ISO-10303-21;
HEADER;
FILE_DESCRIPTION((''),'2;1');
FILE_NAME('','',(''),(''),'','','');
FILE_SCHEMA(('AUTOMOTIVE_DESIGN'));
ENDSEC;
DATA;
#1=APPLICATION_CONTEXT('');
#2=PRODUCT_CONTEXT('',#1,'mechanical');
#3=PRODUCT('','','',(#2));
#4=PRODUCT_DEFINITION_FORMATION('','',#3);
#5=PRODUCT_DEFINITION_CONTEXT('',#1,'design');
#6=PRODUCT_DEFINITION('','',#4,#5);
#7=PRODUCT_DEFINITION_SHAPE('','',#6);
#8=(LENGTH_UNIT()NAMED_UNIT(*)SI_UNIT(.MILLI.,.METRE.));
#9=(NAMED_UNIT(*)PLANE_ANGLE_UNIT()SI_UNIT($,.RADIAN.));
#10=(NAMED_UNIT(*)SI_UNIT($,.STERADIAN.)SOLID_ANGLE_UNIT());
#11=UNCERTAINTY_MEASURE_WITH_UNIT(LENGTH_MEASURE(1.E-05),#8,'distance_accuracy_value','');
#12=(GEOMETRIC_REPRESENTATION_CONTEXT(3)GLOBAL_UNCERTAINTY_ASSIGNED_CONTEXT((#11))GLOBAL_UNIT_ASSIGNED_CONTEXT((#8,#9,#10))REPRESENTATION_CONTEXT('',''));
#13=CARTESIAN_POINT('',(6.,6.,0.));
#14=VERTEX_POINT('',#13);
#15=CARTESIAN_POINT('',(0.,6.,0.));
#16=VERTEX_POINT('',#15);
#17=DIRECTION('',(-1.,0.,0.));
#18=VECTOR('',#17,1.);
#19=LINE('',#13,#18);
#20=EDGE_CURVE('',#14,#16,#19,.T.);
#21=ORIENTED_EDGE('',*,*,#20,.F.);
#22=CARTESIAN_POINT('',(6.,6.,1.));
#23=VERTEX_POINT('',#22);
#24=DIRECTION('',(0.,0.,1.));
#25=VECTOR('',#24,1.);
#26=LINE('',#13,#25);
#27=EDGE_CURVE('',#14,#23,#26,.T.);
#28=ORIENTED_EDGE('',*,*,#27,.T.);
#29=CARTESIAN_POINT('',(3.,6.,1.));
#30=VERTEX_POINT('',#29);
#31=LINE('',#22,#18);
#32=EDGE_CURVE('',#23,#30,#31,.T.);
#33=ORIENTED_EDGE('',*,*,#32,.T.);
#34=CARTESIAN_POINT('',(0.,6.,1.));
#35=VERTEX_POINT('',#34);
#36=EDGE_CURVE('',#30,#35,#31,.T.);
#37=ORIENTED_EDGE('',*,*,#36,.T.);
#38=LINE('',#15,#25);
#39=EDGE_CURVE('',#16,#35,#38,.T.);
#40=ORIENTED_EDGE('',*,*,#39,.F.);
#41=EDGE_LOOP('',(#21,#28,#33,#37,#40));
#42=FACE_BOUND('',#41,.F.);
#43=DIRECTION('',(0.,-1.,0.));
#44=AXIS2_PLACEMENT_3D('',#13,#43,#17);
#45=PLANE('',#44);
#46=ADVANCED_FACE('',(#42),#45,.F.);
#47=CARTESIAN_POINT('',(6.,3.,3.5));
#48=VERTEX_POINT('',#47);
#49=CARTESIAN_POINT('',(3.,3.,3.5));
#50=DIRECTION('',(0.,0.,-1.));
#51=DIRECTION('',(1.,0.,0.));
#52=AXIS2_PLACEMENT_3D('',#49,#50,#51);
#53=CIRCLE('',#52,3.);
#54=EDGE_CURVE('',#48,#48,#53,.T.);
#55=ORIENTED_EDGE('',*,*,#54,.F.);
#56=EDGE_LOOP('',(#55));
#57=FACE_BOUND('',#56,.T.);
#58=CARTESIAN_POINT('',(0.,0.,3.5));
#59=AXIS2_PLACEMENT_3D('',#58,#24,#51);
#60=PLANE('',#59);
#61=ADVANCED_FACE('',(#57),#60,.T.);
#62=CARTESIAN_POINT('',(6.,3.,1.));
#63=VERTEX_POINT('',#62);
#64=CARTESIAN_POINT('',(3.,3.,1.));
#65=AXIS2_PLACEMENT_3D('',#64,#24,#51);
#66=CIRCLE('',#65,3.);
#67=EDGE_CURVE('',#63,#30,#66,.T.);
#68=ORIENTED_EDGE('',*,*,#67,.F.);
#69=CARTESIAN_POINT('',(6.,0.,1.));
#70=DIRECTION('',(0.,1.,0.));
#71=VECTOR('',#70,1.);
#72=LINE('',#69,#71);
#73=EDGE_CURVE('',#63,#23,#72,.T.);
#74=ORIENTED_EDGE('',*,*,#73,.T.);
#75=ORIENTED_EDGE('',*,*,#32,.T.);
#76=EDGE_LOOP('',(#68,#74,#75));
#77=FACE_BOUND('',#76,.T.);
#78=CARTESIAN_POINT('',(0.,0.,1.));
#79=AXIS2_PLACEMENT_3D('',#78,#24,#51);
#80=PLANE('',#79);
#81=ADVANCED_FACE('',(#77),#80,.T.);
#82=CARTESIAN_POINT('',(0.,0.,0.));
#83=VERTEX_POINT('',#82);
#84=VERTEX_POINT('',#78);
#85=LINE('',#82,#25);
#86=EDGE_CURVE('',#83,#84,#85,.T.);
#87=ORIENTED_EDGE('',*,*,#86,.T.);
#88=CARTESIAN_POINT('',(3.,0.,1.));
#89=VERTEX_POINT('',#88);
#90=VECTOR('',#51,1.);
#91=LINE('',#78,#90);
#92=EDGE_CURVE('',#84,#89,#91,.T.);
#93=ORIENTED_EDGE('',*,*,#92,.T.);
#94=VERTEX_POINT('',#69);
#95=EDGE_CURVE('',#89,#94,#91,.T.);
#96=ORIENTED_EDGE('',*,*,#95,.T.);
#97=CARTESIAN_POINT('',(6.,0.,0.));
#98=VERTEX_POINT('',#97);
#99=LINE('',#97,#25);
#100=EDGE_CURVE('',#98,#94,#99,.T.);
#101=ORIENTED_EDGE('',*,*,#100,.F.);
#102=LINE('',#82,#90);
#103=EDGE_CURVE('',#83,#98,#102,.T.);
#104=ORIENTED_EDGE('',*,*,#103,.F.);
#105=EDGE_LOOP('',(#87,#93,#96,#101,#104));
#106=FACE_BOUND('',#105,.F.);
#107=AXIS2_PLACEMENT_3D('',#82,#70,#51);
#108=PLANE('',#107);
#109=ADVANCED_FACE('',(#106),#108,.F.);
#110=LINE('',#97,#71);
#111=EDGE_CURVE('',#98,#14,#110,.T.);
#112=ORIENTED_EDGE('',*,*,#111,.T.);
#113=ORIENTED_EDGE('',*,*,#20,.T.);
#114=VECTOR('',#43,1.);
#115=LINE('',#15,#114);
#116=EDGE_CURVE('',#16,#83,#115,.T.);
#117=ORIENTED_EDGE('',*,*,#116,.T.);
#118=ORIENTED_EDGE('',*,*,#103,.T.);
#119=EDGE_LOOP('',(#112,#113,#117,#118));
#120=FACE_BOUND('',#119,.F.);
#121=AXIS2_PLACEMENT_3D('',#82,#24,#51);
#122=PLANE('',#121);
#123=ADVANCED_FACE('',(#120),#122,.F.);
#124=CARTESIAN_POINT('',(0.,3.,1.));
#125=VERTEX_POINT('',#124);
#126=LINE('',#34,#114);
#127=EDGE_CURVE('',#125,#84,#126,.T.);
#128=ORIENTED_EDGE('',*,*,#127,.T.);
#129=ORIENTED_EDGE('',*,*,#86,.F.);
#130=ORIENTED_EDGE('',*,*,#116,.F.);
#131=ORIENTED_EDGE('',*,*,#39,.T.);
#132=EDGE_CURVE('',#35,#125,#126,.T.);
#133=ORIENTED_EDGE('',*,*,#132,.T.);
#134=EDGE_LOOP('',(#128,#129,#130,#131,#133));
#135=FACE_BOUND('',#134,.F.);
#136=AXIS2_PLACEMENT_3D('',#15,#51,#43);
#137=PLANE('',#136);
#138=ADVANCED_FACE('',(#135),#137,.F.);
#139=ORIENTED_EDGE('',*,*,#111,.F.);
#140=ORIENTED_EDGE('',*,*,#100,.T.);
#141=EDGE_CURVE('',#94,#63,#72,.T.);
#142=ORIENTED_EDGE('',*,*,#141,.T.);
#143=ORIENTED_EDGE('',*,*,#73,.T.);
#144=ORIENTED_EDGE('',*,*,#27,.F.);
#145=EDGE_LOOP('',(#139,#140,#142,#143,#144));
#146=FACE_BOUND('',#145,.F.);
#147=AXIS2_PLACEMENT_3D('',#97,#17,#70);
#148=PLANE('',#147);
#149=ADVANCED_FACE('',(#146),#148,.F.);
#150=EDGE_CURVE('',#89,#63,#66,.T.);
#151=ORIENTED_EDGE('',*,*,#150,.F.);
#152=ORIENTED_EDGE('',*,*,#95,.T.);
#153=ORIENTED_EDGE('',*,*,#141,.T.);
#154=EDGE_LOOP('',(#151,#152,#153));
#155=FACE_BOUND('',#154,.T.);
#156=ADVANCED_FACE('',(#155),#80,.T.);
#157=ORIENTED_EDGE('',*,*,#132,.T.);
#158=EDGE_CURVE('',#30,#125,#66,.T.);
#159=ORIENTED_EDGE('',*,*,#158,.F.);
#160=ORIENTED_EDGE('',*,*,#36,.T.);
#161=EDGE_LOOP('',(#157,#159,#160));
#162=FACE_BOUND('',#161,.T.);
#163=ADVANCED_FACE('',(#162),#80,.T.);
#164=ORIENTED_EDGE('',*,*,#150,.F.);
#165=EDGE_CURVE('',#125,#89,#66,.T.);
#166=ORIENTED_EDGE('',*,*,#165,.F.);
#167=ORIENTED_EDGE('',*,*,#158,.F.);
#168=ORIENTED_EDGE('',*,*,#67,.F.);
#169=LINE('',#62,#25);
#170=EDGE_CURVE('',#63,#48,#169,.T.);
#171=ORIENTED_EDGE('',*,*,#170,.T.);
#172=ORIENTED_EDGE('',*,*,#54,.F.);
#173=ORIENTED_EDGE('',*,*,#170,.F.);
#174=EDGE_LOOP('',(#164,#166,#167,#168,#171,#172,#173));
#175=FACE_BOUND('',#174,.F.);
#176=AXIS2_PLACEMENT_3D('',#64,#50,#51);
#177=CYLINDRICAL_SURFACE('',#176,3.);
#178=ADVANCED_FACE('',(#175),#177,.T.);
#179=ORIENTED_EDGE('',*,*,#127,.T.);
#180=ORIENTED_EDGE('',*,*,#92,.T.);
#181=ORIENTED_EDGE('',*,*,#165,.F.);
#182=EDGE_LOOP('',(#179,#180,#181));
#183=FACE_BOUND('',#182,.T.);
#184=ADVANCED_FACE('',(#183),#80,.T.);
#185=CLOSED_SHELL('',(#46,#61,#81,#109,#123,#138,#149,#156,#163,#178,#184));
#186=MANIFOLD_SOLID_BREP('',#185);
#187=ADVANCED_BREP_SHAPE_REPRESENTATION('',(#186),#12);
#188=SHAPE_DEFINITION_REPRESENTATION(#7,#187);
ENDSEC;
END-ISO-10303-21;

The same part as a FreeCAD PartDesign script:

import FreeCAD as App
import Part
import Sketcher
Q = App.Units.Quantity

doc = App.newDocument("Part")
body = doc.addObject("PartDesign::Body", "Body")

sketch1 = body.newObject("Sketcher::SketchObject", "Sketch")
sketch1.AttachmentSupport = (doc.getObject("XY_Plane"), [""])
sketch1.MapMode = "FlatFace"
sketch1.addGeometry([
    Part.LineSegment(App.Vector(0, 6, 0), App.Vector(0, 0, 0)),
    Part.LineSegment(App.Vector(0, 0, 0), App.Vector(6, 0, 0)),
    Part.LineSegment(App.Vector(6, 0, 0), App.Vector(6, 6, 0)),
    Part.LineSegment(App.Vector(6, 6, 0), App.Vector(0, 6, 0)),
], False)
sketch1.addConstraint([
    Sketcher.Constraint("Coincident", 0, 2, 1, 1),
    Sketcher.Constraint("Coincident", 1, 2, 2, 1),
    Sketcher.Constraint("Coincident", 2, 2, 3, 1),
    Sketcher.Constraint("Coincident", 3, 2, 0, 1),
    Sketcher.Constraint("Vertical", 0),
    Sketcher.Constraint("Horizontal", 1),
    Sketcher.Constraint("Vertical", 2),
    Sketcher.Constraint("Horizontal", 3),
    Sketcher.Constraint("Coincident", 0, 2, -1, 1),
    Sketcher.Constraint("Equal", 3, 0),
    Sketcher.Constraint("DistanceX", 1, 1, 1, 2, Q("6 mm")),
])
pad1 = body.newObject("PartDesign::Pad", "Pad")
pad1.Profile = sketch1
pad1.Length = 1

sketch2 = body.newObject("Sketcher::SketchObject", "Sketch001")
sketch2.AttachmentSupport = (doc.getObject("XY_Plane"), [""])
sketch2.MapMode = "FlatFace"
sketch2.AttachmentOffset = App.Placement(App.Vector(0, 0, 1), App.Rotation())
sketch2.addGeometry(Part.Circle(App.Vector(3, 3, 0), App.Vector(0, 0, 1), 3), False)
sketch2.addConstraint([
    Sketcher.Constraint("Diameter", 0, Q("6 mm")),
    Sketcher.Constraint("DistanceX", -1, 1, 0, 3, Q("3 mm")),
    Sketcher.Constraint("DistanceY", -1, 1, 0, 3, Q("3 mm")),
])
pad2 = body.newObject("PartDesign::Pad", "Pad001")
pad2.Profile = sketch2
pad2.Length = 2.5

doc.recompute()
